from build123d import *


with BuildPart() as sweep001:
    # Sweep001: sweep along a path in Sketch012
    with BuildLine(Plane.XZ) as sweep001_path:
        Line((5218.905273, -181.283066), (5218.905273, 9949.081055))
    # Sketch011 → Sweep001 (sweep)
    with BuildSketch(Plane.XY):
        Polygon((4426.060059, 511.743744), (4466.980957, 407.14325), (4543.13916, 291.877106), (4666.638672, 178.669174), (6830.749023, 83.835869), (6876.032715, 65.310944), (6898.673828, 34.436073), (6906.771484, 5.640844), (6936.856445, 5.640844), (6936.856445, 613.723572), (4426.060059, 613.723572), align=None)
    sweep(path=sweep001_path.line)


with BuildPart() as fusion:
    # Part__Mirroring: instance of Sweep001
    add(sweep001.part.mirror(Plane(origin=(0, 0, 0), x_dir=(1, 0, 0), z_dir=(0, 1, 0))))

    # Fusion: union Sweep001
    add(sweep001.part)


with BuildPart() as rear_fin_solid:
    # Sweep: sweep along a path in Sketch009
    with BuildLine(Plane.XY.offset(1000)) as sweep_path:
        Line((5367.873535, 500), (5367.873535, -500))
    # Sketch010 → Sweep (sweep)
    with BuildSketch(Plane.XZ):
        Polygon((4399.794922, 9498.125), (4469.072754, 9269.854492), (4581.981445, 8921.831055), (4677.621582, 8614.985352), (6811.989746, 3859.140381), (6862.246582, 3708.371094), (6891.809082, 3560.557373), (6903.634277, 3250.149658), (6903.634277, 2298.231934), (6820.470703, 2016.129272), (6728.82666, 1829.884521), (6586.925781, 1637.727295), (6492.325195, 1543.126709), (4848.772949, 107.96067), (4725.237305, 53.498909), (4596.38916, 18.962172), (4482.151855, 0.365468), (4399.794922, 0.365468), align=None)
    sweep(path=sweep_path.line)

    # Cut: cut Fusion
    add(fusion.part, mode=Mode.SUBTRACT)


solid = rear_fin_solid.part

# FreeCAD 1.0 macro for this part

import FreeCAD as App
import Part
import Sketcher
from FreeCAD import Vector
Q = App.Units.Quantity


def add_polygon(sketch, points):
    """Adds a closed chain of lines whose ends are joined by coincident constraints."""
    first, n = sketch.GeometryCount, len(points)
    for a, b in zip(points, points[1:] + points[:1]):
        sketch.addGeometry(Part.LineSegment(App.Vector(*a, 0), App.Vector(*b, 0)), False)
    for i in range(n):
        sketch.addConstraint(Sketcher.Constraint("Coincident", first + i, 2, first + (i + 1) % n, 1))

doc = App.newDocument("Part")
params = doc.addObject("Spreadsheet::Sheet", "Params")
for row, (alias, value) in enumerate([
    ("sketch4_height", "1000 mm"),
], start=1):
    params.set(f"A{row}", alias)
    params.set(f"B{row}", "=" + value)
    params.setAlias(f"B{row}", alias)

body = doc.addObject("PartDesign::Body", "Body")

# Sketch on XY plane
sketch1 = body.newObject("Sketcher::SketchObject", "Sketch")
sketch1.AttachmentSupport = (doc.getObject("XY_Plane"), [""])
sketch1.MapMode = "FlatFace"
add_polygon(sketch1, [(4426, 512), (4467, 407), (4543, 292), (4667, 179), (6831, 84), (6876, 65), (6899, 34), (6907, 6), (6937, 6), (6937, 614), (4426, 614)])  # lines 0-10
sketch1.addConstraint(Sketcher.Constraint("Horizontal", 7))
sketch1.addConstraint(Sketcher.Constraint("Vertical", 8))
sketch1.addConstraint(Sketcher.Constraint("Horizontal", 9))
sketch1.addConstraint(Sketcher.Constraint("Vertical", 10))
sketch1.addConstraint(Sketcher.Constraint("DistanceX", 7, 1, 7, 2, Q("30.084961 mm")))
sketch1.addConstraint(Sketcher.Constraint("DistanceY", 8, 1, 8, 2, Q("608.082728 mm")))
sketch1.addConstraint(Sketcher.Constraint("DistanceY", 5, 2, 2, 2, Q("144.233101 mm")))
sketch1.addConstraint(Sketcher.Constraint("DistanceY", 6, 2, 4, 2, Q("59.6701 mm")))
sketch1.addConstraint(Sketcher.Constraint("DistanceY", 5, 2, 8, 2, Q("579.287499 mm")))
sketch1.addConstraint(Sketcher.Constraint("DistanceX", 9, 2, 1, 2, Q("117.079101 mm")))
sketch1.addConstraint(Sketcher.Constraint("Distance", 4, Q("48.926328 mm")))
sketch1.addConstraint(Sketcher.Constraint("Distance", 5, Q("38.286782 mm")))
sketch1.addConstraint(Sketcher.Constraint("Distance", 6, Q("29.912159 mm")))
sketch1.addConstraint(Sketcher.Constraint("DistanceX", 9, 2, 9, 1, Q("2510.796386 mm")))
sketch1.addConstraint(Sketcher.Constraint("DistanceY", 10, 2, 10, 1, Q("101.979828 mm")))
sketch1.addConstraint(Sketcher.Constraint("DistanceY", -1, 1, 0, 2, Q("407.14325 mm")))
sketch1.addConstraint(Sketcher.Constraint("DistanceX", -1, 1, 1, 2, Q("4543.13916 mm")))
sketch1.addConstraint(Sketcher.Constraint("DistanceX", -1, 1, 2, 2, Q("4666.638672 mm")))
sketch1.addConstraint(Sketcher.Constraint("DistanceY", -1, 1, 3, 2, Q("83.835869 mm")))
sketch1.addConstraint(Sketcher.Constraint("DistanceY", -1, 1, 8, 2, Q("613.723572 mm")))
sketch1.addConstraint(Sketcher.Constraint("DistanceX", 0, 2, 4, 2, Q("2409.051758 mm")))
sketch1.addConstraint(Sketcher.Constraint("DistanceY", 6, 2, 1, 2, Q("286.236262 mm")))

# Sketch on XZ plane
sketch2 = body.newObject("Sketcher::SketchObject", "Sketch001")
sketch2.AttachmentSupport = (doc.getObject("XZ_Plane"), [""])
sketch2.MapMode = "FlatFace"
sketch2.addGeometry(Part.LineSegment(Vector(5219, -181, 0), Vector(5219, 9949, 0)), False)
sketch2.addConstraint(Sketcher.Constraint("Vertical", 0))
sketch2.addConstraint(Sketcher.Constraint("DistanceY", 0, 1, 0, 2, Q("10130.364121 mm")))
sketch2.addConstraint(Sketcher.Constraint("DistanceX", -1, 1, 0, 1, Q("5218.905273 mm")))
sketch2.addConstraint(Sketcher.Constraint("DistanceY", 0, 1, -1, 1, Q("181.283066 mm")))
doc.recompute()

additivepipe = body.newObject("PartDesign::AdditivePipe", "AdditivePipe")
additivepipe.Profile = sketch1
additivepipe.Spine = (sketch2, ["Edge1"])
body2 = doc.addObject("PartDesign::Body", "Body001")
body2.AllowCompound = True
doc.recompute()

mirroring = doc.addObject("Part::Mirroring", "Mirroring")
mirroring.Source = body
mirroring.Base = Vector(0, 0, 0)
mirroring.Normal = Vector(0, 1, 0)
body2.BaseFeature = mirroring
doc.recompute()

boolean = body2.newObject("PartDesign::Boolean", "Boolean")
boolean.Type = "Fuse"
boolean.addObjects([body])
body3 = doc.addObject("PartDesign::Body", "Body002")

# Sketch on XZ plane
sketch3 = body3.newObject("Sketcher::SketchObject", "Sketch002")
sketch3.AttachmentSupport = (doc.getObject("XZ_Plane002"), [""])
sketch3.MapMode = "FlatFace"
add_polygon(sketch3, [(4469, 9270), (4400, 9498), (4400, 0), (4482, 0), (4596, 19), (4725, 53), (4849, 108), (6492, 1543), (6587, 1638), (6729, 1830), (6820, 2016), (6904, 2298), (6904, 3250), (6892, 3561), (6862, 3708), (6812, 3859), (4678, 8615), (4582, 8922)])  # lines 0-17
sketch3.addConstraint(Sketcher.Constraint("Vertical", 1))
sketch3.addConstraint(Sketcher.Constraint("Horizontal", 2))
sketch3.addConstraint(Sketcher.Constraint("Vertical", 11))
sketch3.addConstraint(Sketcher.Constraint("Angle", 7, Q("45 deg")))
sketch3.addConstraint(Sketcher.Constraint("Angle", 15, Q("114.169991 deg")))
sketch3.addConstraint(Sketcher.Constraint("DistanceY", -1, 1, 0, 2, Q("9498.125 mm")))
sketch3.addConstraint(Sketcher.Constraint("DistanceX", 15, 2, 13, 2, Q("2184.625 mm")))
sketch3.addConstraint(Sketcher.Constraint("Distance", 17, Q("365.880698 mm")))
sketch3.addConstraint(Sketcher.Constraint("DistanceY", 2, 2, 5, 2, Q("107.595202 mm")))
sketch3.addConstraint(Sketcher.Constraint("DistanceY", 4, 2, 6, 2, Q("1489.6278 mm")))
sketch3.addConstraint(Sketcher.Constraint("DistanceX", 3, 2, 8, 2, Q("2132.4375 mm")))
sketch3.addConstraint(Sketcher.Constraint("DistanceY", 5, 2, 9, 2, Q("1908.168602 mm")))
sketch3.addConstraint(Sketcher.Constraint("DistanceX", 4, 2, 9, 2, Q("2095.233398 mm")))
sketch3.addConstraint(Sketcher.Constraint("DistanceY", 9, 2, 12, 2, Q("1544.428101 mm")))
sketch3.addConstraint(Sketcher.Constraint("DistanceX", 7, 2, 12, 2, Q("304.883301 mm")))
sketch3.addConstraint(Sketcher.Constraint("DistanceX", 13, 2, 12, 2, Q("29.5625 mm")))
sketch3.addConstraint(Sketcher.Constraint("DistanceX", 16, 2, 14, 2, Q("2230.008301 mm")))
sketch3.addConstraint(Sketcher.Constraint("DistanceY", 13, 2, 17, 2, Q("5561.483398 mm")))
sketch3.addConstraint(Sketcher.Constraint("Distance", 0, Q("238.551552 mm")))
sketch3.addConstraint(Sketcher.Constraint("Distance", 5, Q("135.007921 mm")))
sketch3.addConstraint(Sketcher.Constraint("Distance", 6, Q("2181.96369 mm")))
sketch3.addConstraint(Sketcher.Constraint("Distance", 7, Q("133.785432 mm")))
sketch3.addConstraint(Sketcher.Constraint("Distance", 10, Q("294.10558 mm")))
sketch3.addConstraint(Sketcher.Constraint("Distance", 13, Q("150.740962 mm")))
sketch3.addConstraint(Sketcher.Constraint("Distance", 14, Q("158.924911 mm")))
sketch3.addConstraint(Sketcher.Constraint("Distance", 16, Q("321.405229 mm")))
sketch3.addConstraint(Sketcher.Constraint("DistanceX", 2, 1, 2, 2, Q("82.356933 mm")))
sketch3.addConstraint(Sketcher.Constraint("DistanceY", 1, 2, 1, 1, Q("9497.759532 mm")))
sketch3.addConstraint(Sketcher.Constraint("DistanceY", 11, 1, 11, 2, Q("951.917724 mm")))
sketch3.addConstraint(Sketcher.Constraint("DistanceX", -1, 1, 0, 2, Q("4399.794922 mm")))
sketch3.addConstraint(Sketcher.Constraint("DistanceX", -1, 1, 3, 2, Q("4596.38916 mm")))
sketch3.addConstraint(Sketcher.Constraint("DistanceY", -1, 1, 3, 2, Q("18.962172 mm")))
sketch3.addConstraint(Sketcher.Constraint("DistanceY", -1, 1, 4, 2, Q("53.498909 mm")))
sketch3.addConstraint(Sketcher.Constraint("DistanceX", -1, 1, 5, 2, Q("4848.772949 mm")))
sketch3.addConstraint(Sketcher.Constraint("DistanceY", -1, 1, 8, 2, Q("1829.884521 mm")))
sketch3.addConstraint(Sketcher.Constraint("DistanceY", 9, 2, 10, 2, Q("282.102662 mm")))

# Sketch on XY plane
sketch4 = body3.newObject("Sketcher::SketchObject", "Sketch003")
sketch4.AttachmentSupport = (doc.getObject("XY_Plane002"), [""])
sketch4.MapMode = "FlatFace"
sketch4.AttachmentOffset = App.Placement(Vector(0, 0, 1000), App.Rotation())
sketch4.addGeometry(Part.LineSegment(Vector(5368, 500, 0), Vector(5368, -500, 0)), False)
sketch4.addConstraint(Sketcher.Constraint("Vertical", 0))
sketch4.addConstraint(Sketcher.Constraint("DistanceY", 0, 2, 0, 1, Q("1000 mm")))
sketch4.addConstraint(Sketcher.Constraint("DistanceY", -1, 1, 0, 1, Q("500 mm")))
sketch4.addConstraint(Sketcher.Constraint("DistanceX", -1, 1, 0, 1, Q("5367.873535 mm")))
sketch4.setExpression("Constraints[1]", "Params.sketch4_height")
doc.recompute()

additivepipe2 = body3.newObject("PartDesign::AdditivePipe", "AdditivePipe001")
additivepipe2.Profile = sketch3
additivepipe2.Spine = (sketch4, ["Edge1"])
doc.recompute()

boolean2 = body3.newObject("PartDesign::Boolean", "Boolean001")
boolean2.Type = "Cut"
boolean2.addObjects([body2])
mirroring.Visibility = False

doc.recompute()
